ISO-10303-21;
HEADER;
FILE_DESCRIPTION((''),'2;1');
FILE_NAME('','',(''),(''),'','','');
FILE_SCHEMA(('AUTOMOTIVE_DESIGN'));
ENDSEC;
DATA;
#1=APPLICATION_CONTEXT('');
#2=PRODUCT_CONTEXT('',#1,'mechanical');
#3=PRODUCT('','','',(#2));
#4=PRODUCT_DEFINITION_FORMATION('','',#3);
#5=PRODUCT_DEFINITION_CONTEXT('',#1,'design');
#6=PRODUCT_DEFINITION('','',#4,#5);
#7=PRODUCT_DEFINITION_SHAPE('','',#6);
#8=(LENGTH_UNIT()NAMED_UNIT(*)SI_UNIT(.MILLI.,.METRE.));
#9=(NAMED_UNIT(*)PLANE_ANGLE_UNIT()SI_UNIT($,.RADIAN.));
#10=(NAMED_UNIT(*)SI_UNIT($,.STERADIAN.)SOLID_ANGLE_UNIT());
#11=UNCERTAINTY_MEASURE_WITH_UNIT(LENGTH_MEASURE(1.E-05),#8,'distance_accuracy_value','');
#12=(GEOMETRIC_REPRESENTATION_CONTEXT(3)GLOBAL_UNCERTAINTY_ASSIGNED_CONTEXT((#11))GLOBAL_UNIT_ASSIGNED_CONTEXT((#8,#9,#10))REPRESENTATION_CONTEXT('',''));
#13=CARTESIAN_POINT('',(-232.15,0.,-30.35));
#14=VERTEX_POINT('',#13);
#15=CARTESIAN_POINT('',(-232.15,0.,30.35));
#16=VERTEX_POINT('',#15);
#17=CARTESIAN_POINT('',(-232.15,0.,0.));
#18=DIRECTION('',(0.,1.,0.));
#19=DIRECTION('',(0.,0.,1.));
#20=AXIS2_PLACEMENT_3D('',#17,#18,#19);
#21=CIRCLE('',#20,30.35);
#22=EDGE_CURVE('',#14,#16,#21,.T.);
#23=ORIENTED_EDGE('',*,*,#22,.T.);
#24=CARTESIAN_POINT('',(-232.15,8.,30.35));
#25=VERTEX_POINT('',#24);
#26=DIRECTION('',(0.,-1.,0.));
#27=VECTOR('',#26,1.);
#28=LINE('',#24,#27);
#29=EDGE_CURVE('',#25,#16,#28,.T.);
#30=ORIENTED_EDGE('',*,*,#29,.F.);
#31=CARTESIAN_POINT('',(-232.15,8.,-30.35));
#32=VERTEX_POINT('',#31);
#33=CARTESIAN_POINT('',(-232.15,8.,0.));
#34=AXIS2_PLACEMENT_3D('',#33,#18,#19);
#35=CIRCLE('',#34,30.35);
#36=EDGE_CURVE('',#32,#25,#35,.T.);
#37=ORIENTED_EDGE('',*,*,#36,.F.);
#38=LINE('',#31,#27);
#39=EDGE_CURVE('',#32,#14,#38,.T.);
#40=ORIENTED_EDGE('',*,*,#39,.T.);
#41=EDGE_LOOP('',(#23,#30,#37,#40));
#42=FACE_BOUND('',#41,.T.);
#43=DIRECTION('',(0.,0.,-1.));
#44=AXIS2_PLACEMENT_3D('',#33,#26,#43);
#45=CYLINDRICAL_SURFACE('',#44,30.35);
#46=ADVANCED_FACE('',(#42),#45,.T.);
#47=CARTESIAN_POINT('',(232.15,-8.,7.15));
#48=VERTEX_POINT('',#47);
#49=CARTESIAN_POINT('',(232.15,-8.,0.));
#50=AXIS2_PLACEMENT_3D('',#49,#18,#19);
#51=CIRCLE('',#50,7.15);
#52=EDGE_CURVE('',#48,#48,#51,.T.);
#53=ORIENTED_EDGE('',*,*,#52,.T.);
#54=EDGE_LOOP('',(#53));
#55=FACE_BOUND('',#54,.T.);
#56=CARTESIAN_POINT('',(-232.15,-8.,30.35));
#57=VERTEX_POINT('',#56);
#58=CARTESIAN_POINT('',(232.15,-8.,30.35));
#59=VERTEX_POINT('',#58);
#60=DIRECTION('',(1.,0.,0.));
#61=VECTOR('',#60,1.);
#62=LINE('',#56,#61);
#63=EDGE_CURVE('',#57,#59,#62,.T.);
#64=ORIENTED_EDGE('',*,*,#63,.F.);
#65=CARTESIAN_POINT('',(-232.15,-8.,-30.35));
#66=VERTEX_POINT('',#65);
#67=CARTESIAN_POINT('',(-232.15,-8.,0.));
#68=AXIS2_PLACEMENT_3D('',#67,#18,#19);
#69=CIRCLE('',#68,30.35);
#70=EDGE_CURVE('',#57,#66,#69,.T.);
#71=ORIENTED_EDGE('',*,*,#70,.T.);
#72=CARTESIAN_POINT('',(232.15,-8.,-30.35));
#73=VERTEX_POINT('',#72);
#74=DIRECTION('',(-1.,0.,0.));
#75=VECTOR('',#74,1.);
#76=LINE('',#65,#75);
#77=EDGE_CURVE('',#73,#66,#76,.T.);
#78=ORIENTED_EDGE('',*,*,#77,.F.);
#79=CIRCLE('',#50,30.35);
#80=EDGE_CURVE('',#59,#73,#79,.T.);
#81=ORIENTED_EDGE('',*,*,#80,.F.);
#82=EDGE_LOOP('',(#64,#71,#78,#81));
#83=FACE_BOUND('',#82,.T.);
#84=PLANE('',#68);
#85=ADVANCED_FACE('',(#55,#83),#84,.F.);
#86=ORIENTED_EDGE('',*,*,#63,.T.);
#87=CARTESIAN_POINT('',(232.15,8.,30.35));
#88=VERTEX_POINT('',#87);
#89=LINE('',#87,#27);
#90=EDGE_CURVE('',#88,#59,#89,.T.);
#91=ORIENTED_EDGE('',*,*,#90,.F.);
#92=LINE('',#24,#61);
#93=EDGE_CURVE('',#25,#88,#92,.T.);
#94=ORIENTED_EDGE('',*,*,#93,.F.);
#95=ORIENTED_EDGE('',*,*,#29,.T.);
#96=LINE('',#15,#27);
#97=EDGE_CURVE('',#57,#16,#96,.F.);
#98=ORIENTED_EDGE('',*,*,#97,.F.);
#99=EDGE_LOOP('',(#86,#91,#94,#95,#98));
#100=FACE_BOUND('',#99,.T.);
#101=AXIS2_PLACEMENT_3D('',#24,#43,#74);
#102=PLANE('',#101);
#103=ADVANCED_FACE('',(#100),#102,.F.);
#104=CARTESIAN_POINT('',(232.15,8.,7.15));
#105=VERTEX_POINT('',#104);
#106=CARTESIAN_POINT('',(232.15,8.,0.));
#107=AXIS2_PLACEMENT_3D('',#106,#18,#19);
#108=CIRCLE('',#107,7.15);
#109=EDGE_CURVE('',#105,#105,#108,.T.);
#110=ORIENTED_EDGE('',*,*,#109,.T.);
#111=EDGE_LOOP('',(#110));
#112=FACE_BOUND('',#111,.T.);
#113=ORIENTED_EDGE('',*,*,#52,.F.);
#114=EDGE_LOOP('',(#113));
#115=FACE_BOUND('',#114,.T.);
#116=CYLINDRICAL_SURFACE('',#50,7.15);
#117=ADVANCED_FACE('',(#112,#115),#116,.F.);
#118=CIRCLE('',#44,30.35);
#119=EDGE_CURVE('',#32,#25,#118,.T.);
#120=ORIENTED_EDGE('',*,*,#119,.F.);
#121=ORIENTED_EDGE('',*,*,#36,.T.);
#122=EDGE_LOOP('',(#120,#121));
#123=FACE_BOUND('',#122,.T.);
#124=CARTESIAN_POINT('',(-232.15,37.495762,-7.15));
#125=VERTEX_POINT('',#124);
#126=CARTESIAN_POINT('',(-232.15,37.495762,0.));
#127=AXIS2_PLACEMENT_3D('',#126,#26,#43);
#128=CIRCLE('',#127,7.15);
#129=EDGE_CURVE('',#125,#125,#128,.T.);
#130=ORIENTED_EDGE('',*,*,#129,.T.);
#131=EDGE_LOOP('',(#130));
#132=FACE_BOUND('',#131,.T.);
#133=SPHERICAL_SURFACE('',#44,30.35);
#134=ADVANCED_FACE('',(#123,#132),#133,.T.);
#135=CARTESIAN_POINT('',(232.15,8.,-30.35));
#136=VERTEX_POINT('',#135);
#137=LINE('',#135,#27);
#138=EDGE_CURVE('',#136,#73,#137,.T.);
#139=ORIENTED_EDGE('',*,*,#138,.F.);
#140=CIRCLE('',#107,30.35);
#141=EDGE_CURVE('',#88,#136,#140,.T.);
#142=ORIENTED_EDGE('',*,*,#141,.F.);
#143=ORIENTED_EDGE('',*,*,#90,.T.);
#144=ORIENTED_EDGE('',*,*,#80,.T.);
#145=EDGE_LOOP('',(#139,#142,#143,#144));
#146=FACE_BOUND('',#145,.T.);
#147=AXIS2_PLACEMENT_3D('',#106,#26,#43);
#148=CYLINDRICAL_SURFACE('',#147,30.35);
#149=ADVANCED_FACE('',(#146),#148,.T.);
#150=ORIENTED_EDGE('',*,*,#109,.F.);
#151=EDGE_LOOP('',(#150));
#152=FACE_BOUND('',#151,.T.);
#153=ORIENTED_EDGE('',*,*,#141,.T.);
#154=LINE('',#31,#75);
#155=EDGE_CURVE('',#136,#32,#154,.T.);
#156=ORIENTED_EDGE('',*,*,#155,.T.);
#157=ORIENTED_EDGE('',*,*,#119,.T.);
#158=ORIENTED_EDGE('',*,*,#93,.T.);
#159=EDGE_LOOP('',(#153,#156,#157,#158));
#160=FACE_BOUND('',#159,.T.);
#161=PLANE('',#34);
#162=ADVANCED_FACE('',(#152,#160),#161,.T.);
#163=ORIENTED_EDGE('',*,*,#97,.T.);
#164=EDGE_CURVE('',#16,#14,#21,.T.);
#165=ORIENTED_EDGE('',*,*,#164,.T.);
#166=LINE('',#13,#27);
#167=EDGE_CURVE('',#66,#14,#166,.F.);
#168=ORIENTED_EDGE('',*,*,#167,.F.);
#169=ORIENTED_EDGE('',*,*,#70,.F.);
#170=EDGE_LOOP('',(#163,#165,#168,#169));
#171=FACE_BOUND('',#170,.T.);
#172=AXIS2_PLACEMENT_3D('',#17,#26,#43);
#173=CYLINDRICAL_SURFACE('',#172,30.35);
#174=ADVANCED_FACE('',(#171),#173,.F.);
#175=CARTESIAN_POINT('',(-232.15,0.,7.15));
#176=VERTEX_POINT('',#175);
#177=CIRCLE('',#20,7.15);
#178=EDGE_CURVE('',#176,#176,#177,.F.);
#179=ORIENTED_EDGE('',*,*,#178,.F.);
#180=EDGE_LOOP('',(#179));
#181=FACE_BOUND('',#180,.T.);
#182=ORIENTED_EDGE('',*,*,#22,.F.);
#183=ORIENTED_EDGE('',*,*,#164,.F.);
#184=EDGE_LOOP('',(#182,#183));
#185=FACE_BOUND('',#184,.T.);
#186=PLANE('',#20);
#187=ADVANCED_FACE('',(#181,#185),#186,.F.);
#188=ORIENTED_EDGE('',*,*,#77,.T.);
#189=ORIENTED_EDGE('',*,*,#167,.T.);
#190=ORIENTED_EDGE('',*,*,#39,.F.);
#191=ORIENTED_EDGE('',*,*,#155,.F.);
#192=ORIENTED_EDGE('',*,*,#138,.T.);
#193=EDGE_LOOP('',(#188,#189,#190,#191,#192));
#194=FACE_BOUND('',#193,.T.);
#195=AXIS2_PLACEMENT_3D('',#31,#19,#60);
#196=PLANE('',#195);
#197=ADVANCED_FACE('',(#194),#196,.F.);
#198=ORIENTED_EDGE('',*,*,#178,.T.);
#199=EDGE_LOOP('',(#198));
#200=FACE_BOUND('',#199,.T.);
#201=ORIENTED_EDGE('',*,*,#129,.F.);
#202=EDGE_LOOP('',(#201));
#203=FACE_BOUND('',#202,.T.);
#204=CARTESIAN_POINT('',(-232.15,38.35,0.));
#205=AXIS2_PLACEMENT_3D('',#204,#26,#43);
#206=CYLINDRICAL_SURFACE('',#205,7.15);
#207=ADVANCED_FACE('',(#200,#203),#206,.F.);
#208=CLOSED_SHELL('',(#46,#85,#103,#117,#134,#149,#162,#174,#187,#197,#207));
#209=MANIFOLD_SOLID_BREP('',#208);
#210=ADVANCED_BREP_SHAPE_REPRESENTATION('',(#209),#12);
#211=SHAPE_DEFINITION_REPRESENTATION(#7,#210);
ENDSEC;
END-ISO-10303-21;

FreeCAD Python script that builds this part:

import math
import FreeCAD as App
import Part
import Sketcher

doc = App.newDocument("Part")
body = doc.addObject("PartDesign::Body", "Body")

# Sketch on XZ plane
sketch1 = doc.addObject("Sketcher::SketchObject", "Sketch")
body.addObject(sketch1)
sketch1.AttachmentSupport = (doc.XZ_Plane, [""])
sketch1.MapMode = "FlatFace"
sketch1.addGeometry(Part.LineSegment(App.Vector(232, -30, 0), App.Vector(-232, -30, 0)), False)
sketch1.addGeometry(Part.ArcOfCircle(Part.Circle(App.Vector(-232, 0, 0), App.Vector(0, 0, 1), 30), math.radians(90), math.radians(270)), False)
sketch1.addGeometry(Part.LineSegment(App.Vector(-232, 30, 0), App.Vector(232, 30, 0)), False)
sketch1.addGeometry(Part.ArcOfCircle(Part.Circle(App.Vector(232, 0, 0), App.Vector(0, 0, 1), 30), math.radians(-90), math.radians(90)), False)
sketch1.addConstraint(Sketcher.Constraint("Tangent", 0, 2, 1, 2))
sketch1.addConstraint(Sketcher.Constraint("Tangent", 1, 1, 2, 1))
sketch1.addConstraint(Sketcher.Constraint("Tangent", 2, 2, 3, 2))
sketch1.addConstraint(Sketcher.Constraint("Tangent", 3, 1, 0, 1))
sketch1.addConstraint(Sketcher.Constraint("Horizontal", 0))
sketch1.addConstraint(Sketcher.Constraint("Horizontal", 2))
sketch1.addConstraint(Sketcher.Constraint("Symmetric", 1, 3, 3, 3, -1, 1))
sketch1.addConstraint(Sketcher.Constraint("Radius", 1, 30.35))
sketch1.addConstraint(Sketcher.Constraint("DistanceX", 0, 2, 0, 1, 464.3))
pad1 = doc.addObject("PartDesign::Pad", "Pad")
body.addObject(pad1)
pad1.Profile = sketch1
pad1.Length = 16
pad1.Midplane = True

# Sketch on XZ plane
sketch2 = doc.addObject("Sketcher::SketchObject", "Sketch001")
body.addObject(sketch2)
sketch2.AttachmentSupport = (doc.XZ_Plane, [""])
sketch2.MapMode = "FlatFace"
sketch2.AttachmentOffset = App.Placement(App.Vector(0, 0, -8), App.Rotation())
sketch2.addGeometry(Part.Circle(App.Vector(232, 0, 0), App.Vector(0, 0, 1), 7), False)
sketch2.addConstraint(Sketcher.Constraint("PointOnObject", 0, 3, -1))
sketch2.addConstraint(Sketcher.Constraint("Diameter", 0, 14.3))
sketch2.addConstraint(Sketcher.Constraint("DistanceX", -1, 1, 0, 3, 232.15))
pocket1 = doc.addObject("PartDesign::Pocket", "Pocket")
body.addObject(pocket1)
pocket1.Profile = sketch2
pocket1.Type = "ThroughAll"
pocket1.Reversed = True

# Sketch on XZ plane
sketch3 = doc.addObject("Sketcher::SketchObject", "Sketch002")
body.addObject(sketch3)
sketch3.AttachmentSupport = (doc.XZ_Plane, [""])
sketch3.MapMode = "FlatFace"
sketch3.AttachmentOffset = App.Placement(App.Vector(0, 0, -8), App.Rotation())
sketch3.addGeometry(Part.LineSegment(App.Vector(-232, 30, 0), App.Vector(-232, -30, 0)), False)
sketch3.addGeometry(Part.ArcOfCircle(Part.Circle(App.Vector(-232, 0, 0), App.Vector(0, 0, 1), 30), math.radians(90), math.radians(270)), False)
sketch3.addGeometry(Part.LineSegment(App.Vector(-232, 30, 0), App.Vector(-232, -30, 0)), True)  # axis
sketch3.addConstraint(Sketcher.Constraint("Coincident", 0, 1, 1, 1))
sketch3.addConstraint(Sketcher.Constraint("Coincident", 1, 2, 0, 2))
sketch3.addConstraint(Sketcher.Constraint("Vertical", 0))
sketch3.addConstraint(Sketcher.Constraint("Vertical", 2))
sketch3.addConstraint(Sketcher.Constraint("Coincident", 2, 1, 0, 1))
sketch3.addConstraint(Sketcher.Constraint("PointOnObject", 1, 3, -1))
sketch3.addConstraint(Sketcher.Constraint("Vertical", 1, 3, 0, 1))
sketch3.addConstraint(Sketcher.Constraint("Equal", 0, 2))
sketch3.addConstraint(Sketcher.Constraint("Radius", 1, 30.35))
sketch3.addConstraint(Sketcher.Constraint("DistanceX", 1, 3, -1, 1, 232.15))
revolution = doc.addObject("PartDesign::Revolution", "Revolution")
body.addObject(revolution)
revolution.Profile = sketch3
revolution.ReferenceAxis = (sketch3, ["Axis0"])
revolution.Angle = 180

# Sketch on XZ plane
sketch4 = doc.addObject("Sketcher::SketchObject", "Sketch003")
body.addObject(sketch4)
sketch4.AttachmentSupport = (doc.XZ_Plane, [""])
sketch4.MapMode = "FlatFace"
sketch4.AttachmentOffset = App.Placement(App.Vector(0, 0, 8), App.Rotation())
sketch4.addGeometry(Part.Circle(App.Vector(-232, 0, 0), App.Vector(0, 0, 1), 7), False)
sketch4.addConstraint(Sketcher.Constraint("PointOnObject", 0, 3, -1))
sketch4.addConstraint(Sketcher.Constraint("Diameter", 0, 14.3))
sketch4.addConstraint(Sketcher.Constraint("DistanceX", 0, 3, -1, 1, 232.15))
pocket2 = doc.addObject("PartDesign::Pocket", "Pocket001")
body.addObject(pocket2)
pocket2.Profile = sketch4
pocket2.Type = "ThroughAll"

# Sketch on XZ plane
sketch5 = doc.addObject("Sketcher::SketchObject", "Sketch004")
body.addObject(sketch5)
sketch5.AttachmentSupport = (doc.XZ_Plane, [""])
sketch5.MapMode = "FlatFace"
sketch5.addGeometry(Part.Circle(App.Vector(-232, 0, 0), App.Vector(0, 0, 1), 30), False)
sketch5.addConstraint(Sketcher.Constraint("PointOnObject", 0, 3, -1))
sketch5.addConstraint(Sketcher.Constraint("Diameter", 0, 60.7))
sketch5.addConstraint(Sketcher.Constraint("DistanceX", 0, 3, -1, 1, 232.15))
pocket3 = doc.addObject("PartDesign::Pocket", "Pocket002")
body.addObject(pocket3)
pocket3.Profile = sketch5
pocket3.Length = 8
pocket3.Reversed = True

doc.recompute()
